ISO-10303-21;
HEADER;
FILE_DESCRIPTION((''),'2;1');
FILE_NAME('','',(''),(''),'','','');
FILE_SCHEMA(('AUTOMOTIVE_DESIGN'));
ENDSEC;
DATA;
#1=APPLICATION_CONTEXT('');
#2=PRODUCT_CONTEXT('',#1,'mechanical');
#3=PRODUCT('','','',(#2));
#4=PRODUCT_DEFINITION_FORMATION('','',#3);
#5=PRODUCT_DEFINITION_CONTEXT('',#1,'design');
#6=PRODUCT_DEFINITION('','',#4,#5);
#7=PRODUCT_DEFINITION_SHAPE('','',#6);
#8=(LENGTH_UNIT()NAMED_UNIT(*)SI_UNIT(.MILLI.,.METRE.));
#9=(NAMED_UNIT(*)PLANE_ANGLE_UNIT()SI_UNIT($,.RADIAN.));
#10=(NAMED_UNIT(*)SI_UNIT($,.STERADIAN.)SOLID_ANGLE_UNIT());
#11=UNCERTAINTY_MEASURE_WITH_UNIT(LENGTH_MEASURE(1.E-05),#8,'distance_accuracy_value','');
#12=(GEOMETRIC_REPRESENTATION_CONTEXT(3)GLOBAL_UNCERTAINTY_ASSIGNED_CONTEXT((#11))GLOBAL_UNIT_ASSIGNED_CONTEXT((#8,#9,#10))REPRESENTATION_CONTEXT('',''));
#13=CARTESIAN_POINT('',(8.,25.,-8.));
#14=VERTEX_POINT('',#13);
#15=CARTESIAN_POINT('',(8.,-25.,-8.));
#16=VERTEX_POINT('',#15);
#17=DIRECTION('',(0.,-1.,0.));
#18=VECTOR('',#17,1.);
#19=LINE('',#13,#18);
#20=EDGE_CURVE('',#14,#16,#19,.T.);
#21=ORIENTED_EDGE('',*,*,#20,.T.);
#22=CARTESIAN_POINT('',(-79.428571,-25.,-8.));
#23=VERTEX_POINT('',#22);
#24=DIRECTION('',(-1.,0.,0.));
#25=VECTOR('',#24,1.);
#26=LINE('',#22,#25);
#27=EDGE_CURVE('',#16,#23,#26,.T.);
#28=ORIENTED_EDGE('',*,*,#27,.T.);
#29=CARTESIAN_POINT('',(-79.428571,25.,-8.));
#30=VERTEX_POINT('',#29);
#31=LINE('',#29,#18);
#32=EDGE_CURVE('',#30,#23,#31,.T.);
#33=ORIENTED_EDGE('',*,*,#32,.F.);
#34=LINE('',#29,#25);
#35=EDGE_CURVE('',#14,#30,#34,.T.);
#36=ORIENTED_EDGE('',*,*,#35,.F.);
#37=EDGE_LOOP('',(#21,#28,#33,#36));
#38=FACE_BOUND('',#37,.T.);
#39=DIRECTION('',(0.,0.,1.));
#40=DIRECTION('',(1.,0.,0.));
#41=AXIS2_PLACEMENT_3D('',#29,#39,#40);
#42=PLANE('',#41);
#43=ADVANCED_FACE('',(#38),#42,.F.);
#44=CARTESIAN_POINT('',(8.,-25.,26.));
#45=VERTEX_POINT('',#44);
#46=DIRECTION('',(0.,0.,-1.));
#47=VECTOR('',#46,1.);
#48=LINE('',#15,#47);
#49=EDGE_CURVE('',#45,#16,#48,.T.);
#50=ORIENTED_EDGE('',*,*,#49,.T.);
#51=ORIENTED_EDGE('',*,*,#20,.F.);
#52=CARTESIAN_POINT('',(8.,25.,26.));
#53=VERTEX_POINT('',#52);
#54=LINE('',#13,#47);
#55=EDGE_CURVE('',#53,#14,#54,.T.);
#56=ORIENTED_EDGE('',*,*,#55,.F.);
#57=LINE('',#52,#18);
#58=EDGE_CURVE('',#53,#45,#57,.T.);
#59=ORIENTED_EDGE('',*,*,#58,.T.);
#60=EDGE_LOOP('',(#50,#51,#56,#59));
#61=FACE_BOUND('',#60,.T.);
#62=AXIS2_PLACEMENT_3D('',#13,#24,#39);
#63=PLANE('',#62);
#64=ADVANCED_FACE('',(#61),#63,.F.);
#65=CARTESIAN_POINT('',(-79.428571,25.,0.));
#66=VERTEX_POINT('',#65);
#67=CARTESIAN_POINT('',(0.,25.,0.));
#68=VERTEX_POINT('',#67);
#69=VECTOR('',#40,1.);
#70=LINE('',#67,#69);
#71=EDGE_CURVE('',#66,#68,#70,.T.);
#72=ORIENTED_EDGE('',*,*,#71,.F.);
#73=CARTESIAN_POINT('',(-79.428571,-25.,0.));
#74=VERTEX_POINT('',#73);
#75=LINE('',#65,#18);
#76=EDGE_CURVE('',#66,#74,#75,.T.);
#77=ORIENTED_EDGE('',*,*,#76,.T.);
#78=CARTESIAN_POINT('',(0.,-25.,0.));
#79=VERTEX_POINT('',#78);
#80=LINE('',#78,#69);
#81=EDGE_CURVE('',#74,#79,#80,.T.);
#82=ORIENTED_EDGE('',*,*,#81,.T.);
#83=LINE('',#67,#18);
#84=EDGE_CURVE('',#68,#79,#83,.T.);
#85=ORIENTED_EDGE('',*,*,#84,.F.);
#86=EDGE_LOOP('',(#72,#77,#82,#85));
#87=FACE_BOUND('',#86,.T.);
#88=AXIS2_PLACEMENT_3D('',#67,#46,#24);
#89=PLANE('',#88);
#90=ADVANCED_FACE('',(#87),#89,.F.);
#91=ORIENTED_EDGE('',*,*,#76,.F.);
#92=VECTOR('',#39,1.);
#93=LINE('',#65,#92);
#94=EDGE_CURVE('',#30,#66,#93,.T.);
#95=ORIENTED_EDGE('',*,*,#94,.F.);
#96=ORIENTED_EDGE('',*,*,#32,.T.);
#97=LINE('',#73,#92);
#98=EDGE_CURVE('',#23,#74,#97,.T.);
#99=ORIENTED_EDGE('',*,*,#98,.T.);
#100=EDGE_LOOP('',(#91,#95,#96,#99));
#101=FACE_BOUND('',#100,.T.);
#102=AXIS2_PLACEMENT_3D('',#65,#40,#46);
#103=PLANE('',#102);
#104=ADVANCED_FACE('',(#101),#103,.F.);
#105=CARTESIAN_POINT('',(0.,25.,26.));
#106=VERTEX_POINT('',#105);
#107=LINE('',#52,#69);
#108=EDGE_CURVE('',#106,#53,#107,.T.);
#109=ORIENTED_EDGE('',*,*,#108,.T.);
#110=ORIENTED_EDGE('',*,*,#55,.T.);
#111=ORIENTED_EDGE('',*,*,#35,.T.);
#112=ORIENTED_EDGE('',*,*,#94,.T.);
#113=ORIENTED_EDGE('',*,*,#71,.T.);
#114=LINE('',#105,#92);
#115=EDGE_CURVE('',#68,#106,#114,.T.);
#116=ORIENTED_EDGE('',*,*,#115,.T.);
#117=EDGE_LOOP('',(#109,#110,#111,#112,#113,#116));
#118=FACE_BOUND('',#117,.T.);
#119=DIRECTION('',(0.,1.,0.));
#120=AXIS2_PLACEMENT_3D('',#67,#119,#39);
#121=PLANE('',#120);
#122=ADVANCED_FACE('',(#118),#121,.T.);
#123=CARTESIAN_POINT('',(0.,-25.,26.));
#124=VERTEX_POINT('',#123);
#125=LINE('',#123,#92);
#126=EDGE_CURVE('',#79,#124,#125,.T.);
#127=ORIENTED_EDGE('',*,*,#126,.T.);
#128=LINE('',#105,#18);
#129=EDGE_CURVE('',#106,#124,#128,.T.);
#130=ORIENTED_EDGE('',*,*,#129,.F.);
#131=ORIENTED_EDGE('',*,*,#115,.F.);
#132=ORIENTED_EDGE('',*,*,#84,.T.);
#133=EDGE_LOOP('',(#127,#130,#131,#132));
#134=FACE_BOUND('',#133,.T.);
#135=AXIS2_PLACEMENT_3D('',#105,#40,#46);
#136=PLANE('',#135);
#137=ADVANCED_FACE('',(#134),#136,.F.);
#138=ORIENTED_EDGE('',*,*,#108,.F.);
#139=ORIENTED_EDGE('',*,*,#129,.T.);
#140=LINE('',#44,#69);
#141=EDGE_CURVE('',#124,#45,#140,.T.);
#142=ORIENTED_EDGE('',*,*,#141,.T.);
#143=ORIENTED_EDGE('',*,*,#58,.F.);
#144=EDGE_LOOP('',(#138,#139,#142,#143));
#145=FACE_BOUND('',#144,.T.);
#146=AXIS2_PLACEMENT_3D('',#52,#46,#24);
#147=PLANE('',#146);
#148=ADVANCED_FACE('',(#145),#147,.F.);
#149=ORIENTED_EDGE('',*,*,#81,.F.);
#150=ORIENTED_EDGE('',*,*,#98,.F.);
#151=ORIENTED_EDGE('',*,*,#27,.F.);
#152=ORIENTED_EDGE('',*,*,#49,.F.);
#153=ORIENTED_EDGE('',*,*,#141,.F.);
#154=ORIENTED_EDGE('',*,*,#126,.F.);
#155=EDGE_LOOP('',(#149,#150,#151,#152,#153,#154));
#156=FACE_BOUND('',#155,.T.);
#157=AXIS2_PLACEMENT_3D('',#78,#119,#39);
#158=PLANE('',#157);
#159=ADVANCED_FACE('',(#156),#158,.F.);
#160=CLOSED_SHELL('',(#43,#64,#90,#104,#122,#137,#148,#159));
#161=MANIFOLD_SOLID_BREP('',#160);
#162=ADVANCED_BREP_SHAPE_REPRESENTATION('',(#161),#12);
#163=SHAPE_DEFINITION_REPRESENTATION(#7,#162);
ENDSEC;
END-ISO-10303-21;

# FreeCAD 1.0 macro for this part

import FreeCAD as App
import Part
import Sketcher

V = App.Vector


def add_polygon(sketch, points):
    """Adds a closed chain of lines whose ends are joined by coincident constraints."""
    first, n = sketch.GeometryCount, len(points)
    for a, b in zip(points, points[1:] + points[:1]):
        sketch.addGeometry(Part.LineSegment(App.Vector(*a, 0), App.Vector(*b, 0)), False)
    for i in range(n):
        sketch.addConstraint(Sketcher.Constraint("Coincident", first + i, 2, first + (i + 1) % n, 1))

doc = App.newDocument("Part")
params = doc.addObject("Spreadsheet::Sheet", "Params")
for row, (alias, value) in enumerate([
    ("sketch1_width", "8 mm"),
    ("sketch1_height", "26 mm"),
    ("pad1_length", "50 mm"),
], start=1):
    params.set(f"A{row}", alias)
    params.set(f"B{row}", "=" + value)
    params.setAlias(f"B{row}", alias)

body = doc.addObject("PartDesign::Body", "Body")

sketch1 = body.newObject("Sketcher::SketchObject", "Sketch")
sketch1.AttachmentSupport = (doc.getObject("XZ_Plane"), [""])
sketch1.MapMode = "FlatFace"
add_polygon(sketch1, [(-79, 0), (0, 0), (0, 26), (8, 26), (8, -8), (-79, -8)])
sketch1.addConstraint([
    Sketcher.Constraint("Horizontal", 0),
    Sketcher.Constraint("Vertical", 1),
    Sketcher.Constraint("Horizontal", 2),
    Sketcher.Constraint("Vertical", 3),
    Sketcher.Constraint("Horizontal", 4),
    Sketcher.Constraint("Vertical", 5),
    Sketcher.Constraint("Coincident", 0, 2, -1, 1),
    Sketcher.Constraint("Equal", 2, 5),
    Sketcher.Constraint("DistanceX", 2, 1, 2, 2, 8.0),
    Sketcher.Constraint("DistanceY", 1, 1, 1, 2, 26.0),
    Sketcher.Constraint("DistanceX", 0, 1, 0, 2, 79.428571),
])
sketch1.setExpression("Constraints[14]", "Params.sketch1_width")
sketch1.setExpression("Constraints[15]", "Params.sketch1_height")
pad1 = body.newObject("PartDesign::Pad", "Pad")
pad1.Profile = sketch1
pad1.setExpression("Length", "Params.pad1_length")
pad1.Midplane = True

doc.recompute()
